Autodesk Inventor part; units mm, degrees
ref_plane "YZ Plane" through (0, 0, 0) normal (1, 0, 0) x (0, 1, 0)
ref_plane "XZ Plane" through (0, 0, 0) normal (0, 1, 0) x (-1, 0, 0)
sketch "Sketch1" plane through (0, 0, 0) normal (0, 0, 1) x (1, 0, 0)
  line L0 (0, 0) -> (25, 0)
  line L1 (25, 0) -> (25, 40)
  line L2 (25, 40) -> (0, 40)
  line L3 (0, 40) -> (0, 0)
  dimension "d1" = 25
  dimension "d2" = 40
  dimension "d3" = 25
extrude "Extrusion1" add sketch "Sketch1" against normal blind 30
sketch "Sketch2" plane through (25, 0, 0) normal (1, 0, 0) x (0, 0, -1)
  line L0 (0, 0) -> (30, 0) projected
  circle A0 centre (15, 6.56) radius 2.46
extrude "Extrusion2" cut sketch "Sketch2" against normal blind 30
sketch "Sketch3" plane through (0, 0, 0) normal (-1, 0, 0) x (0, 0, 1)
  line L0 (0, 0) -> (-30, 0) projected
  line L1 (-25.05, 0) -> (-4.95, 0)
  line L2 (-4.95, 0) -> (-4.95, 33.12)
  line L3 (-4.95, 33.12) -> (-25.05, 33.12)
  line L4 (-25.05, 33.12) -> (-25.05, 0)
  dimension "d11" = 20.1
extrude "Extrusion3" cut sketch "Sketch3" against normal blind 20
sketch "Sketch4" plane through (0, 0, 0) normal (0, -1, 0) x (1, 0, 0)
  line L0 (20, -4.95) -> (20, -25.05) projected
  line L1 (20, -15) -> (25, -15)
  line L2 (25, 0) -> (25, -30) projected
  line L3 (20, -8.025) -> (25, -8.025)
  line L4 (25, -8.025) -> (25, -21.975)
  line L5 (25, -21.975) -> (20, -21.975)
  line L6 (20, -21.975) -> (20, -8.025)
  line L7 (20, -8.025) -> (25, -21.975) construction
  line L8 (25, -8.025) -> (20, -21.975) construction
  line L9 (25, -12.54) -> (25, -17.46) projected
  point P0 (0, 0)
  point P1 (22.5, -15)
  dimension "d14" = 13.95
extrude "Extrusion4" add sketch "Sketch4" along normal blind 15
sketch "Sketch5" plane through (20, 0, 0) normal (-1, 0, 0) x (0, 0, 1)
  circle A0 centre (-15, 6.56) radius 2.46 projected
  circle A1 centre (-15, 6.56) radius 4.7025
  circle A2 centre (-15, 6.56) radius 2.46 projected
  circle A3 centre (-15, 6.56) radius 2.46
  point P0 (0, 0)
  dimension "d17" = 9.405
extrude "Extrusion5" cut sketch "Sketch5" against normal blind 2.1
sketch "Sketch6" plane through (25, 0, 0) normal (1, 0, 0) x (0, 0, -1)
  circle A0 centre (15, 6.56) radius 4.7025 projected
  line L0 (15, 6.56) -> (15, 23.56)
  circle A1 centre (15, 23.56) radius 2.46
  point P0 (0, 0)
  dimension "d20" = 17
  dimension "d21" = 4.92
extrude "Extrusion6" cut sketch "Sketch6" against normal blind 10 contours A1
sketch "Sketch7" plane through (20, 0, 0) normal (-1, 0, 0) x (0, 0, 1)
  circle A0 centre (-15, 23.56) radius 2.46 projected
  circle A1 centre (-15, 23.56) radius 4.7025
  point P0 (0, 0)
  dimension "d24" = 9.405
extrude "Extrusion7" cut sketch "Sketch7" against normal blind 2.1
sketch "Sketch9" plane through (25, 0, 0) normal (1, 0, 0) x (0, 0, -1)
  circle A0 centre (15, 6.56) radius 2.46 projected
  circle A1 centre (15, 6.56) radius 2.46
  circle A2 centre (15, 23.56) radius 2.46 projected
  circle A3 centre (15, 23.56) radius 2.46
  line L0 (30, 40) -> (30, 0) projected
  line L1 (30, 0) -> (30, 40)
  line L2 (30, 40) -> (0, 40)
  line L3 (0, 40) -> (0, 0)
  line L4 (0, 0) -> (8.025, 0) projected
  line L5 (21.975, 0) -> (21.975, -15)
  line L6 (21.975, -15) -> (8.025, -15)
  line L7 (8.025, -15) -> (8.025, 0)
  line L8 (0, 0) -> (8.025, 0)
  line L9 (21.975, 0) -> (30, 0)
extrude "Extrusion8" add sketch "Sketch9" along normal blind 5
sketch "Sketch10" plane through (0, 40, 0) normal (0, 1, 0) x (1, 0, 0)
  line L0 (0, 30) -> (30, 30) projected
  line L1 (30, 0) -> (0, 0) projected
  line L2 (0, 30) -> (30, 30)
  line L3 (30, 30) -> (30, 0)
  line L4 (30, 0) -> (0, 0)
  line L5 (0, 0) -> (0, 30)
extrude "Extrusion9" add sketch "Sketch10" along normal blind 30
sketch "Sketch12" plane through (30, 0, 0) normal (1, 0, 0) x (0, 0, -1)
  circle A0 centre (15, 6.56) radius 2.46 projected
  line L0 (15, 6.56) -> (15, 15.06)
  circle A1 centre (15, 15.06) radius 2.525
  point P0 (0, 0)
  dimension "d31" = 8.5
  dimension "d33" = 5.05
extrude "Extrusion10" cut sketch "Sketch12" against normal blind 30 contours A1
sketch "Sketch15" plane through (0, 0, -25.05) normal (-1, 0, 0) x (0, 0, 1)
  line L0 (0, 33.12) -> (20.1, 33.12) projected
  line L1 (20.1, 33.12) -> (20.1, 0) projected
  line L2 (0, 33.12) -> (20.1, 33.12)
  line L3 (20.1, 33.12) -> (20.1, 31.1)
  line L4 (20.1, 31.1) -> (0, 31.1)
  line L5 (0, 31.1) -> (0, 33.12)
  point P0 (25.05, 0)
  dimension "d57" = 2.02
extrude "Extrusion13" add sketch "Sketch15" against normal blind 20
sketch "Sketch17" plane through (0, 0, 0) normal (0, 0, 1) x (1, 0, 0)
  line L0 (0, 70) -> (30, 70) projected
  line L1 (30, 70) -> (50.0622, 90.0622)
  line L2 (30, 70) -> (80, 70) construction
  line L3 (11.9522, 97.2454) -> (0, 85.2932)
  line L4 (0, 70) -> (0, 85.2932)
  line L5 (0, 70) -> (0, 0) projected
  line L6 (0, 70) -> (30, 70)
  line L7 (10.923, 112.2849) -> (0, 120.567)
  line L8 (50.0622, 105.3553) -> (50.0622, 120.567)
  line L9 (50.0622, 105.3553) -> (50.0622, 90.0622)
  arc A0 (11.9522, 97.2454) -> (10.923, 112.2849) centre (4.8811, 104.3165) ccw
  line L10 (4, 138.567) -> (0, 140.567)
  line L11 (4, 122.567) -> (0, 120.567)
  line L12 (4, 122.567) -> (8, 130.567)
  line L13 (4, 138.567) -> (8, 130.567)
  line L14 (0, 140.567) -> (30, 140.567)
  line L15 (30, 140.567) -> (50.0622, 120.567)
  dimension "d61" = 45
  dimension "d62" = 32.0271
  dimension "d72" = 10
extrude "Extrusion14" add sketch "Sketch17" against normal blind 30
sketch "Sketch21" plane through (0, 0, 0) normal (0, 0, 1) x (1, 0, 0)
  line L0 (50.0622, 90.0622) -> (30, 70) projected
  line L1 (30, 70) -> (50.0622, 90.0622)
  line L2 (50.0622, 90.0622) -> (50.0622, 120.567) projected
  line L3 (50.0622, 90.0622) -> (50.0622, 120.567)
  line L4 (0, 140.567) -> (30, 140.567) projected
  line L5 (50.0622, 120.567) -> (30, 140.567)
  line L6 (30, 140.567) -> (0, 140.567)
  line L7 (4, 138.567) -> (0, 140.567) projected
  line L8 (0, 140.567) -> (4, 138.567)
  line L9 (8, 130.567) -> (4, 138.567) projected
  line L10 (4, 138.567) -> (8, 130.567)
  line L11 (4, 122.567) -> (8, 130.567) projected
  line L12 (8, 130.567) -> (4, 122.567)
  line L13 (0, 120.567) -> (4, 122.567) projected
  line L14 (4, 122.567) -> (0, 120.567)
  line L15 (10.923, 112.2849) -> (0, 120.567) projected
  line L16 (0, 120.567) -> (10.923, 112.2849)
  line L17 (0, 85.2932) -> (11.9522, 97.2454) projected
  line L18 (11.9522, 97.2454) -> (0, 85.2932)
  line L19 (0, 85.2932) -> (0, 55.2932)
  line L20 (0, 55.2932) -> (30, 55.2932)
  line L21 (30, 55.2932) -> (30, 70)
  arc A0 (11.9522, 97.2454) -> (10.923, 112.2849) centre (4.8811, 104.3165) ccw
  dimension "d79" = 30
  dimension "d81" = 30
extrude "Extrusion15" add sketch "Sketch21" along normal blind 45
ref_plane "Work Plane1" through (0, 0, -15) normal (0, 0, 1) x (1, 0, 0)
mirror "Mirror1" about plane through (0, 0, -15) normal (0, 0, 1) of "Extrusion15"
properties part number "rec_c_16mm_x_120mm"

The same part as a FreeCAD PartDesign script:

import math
import FreeCAD as App
import Part
import Sketcher

V = App.Vector
Q = App.Units.Quantity

doc = App.newDocument("Part")
body = doc.addObject("PartDesign::Body", "Body")

# Sketch on XY plane
sketch1 = body.newObject("Sketcher::SketchObject", "Sketch")
sketch1.AttachmentSupport = (doc.getObject("XY_Plane"), [""])
sketch1.MapMode = "FlatFace"
sketch1.addGeometry([
    Part.LineSegment(V(0, 40, 0), V(0, 0, 0)),
    Part.LineSegment(V(0, 0, 0), V(25, 0, 0)),
    Part.LineSegment(V(25, 0, 0), V(25, 40, 0)),
    Part.LineSegment(V(25, 40, 0), V(0, 40, 0)),
], False)
sketch1.addConstraint([
    Sketcher.Constraint("Coincident", 0, 2, 1, 1),
    Sketcher.Constraint("Coincident", 1, 2, 2, 1),
    Sketcher.Constraint("Coincident", 2, 2, 3, 1),
    Sketcher.Constraint("Coincident", 3, 2, 0, 1),
    Sketcher.Constraint("Vertical", 0),
    Sketcher.Constraint("Horizontal", 1),
    Sketcher.Constraint("Vertical", 2),
    Sketcher.Constraint("Horizontal", 3),
    Sketcher.Constraint("Coincident", 0, 2, -1, 1),
    Sketcher.Constraint("DistanceX", 1, 1, 1, 2, Q("25 mm")),
    Sketcher.Constraint("DistanceY", 0, 2, 0, 1, Q("40 mm")),
])
pad1 = body.newObject("PartDesign::Pad", "Pad")
pad1.Profile = sketch1
pad1.Length = 30
pad1.Reversed = True

# Sketch on YZ plane
sketch2 = body.newObject("Sketcher::SketchObject", "Sketch001")
sketch2.AttachmentSupport = (doc.getObject("YZ_Plane"), [""])
sketch2.MapMode = "FlatFace"
sketch2.AttachmentOffset = App.Placement(V(0, 0, 25), App.Rotation())
sketch2.addGeometry(Part.Circle(V(6.56, -15, 0), V(0, 0, 1), 2.46), False)
sketch2.addConstraint([
    Sketcher.Constraint("Diameter", 0, Q("4.92 mm")),
    Sketcher.Constraint("DistanceY", 0, 3, -1, 1, Q("15 mm")),
    Sketcher.Constraint("DistanceX", -1, 1, 0, 3, Q("6.56 mm")),
])
pocket1 = body.newObject("PartDesign::Pocket", "Pocket")
pocket1.Profile = sketch2
pocket1.Length = 30

# Sketch on YZ plane
sketch3 = body.newObject("Sketcher::SketchObject", "Sketch002")
sketch3.AttachmentSupport = (doc.getObject("YZ_Plane"), [""])
sketch3.MapMode = "FlatFace"
sketch3.addGeometry([
    Part.LineSegment(V(0, -25.05, 0), V(0, -4.95, 0)),
    Part.LineSegment(V(0, -4.95, 0), V(33.12, -4.95, 0)),
    Part.LineSegment(V(33.12, -4.95, 0), V(33.12, -25.05, 0)),
    Part.LineSegment(V(33.12, -25.05, 0), V(0, -25.05, 0)),
], False)
sketch3.addConstraint([
    Sketcher.Constraint("Coincident", 0, 2, 1, 1),
    Sketcher.Constraint("Coincident", 1, 2, 2, 1),
    Sketcher.Constraint("Coincident", 2, 2, 3, 1),
    Sketcher.Constraint("Coincident", 3, 2, 0, 1),
    Sketcher.Constraint("Vertical", 0),
    Sketcher.Constraint("Horizontal", 1),
    Sketcher.Constraint("Vertical", 2),
    Sketcher.Constraint("Horizontal", 3),
    Sketcher.Constraint("PointOnObject", 0, 2, -2),
    Sketcher.Constraint("DistanceY", 0, 1, 0, 2, Q("20.1 mm")),
    Sketcher.Constraint("DistanceX", 1, 1, 1, 2, Q("33.12 mm")),
    Sketcher.Constraint("DistanceY", 0, 2, -1, 1, Q("4.95 mm")),
])
pocket2 = body.newObject("PartDesign::Pocket", "Pocket001")
pocket2.Profile = sketch3
pocket2.Length = 20
pocket2.Reversed = True

# Sketch on XZ plane
sketch4 = body.newObject("Sketcher::SketchObject", "Sketch003")
sketch4.AttachmentSupport = (doc.getObject("XZ_Plane"), [""])
sketch4.MapMode = "FlatFace"
sketch4.addGeometry([
    Part.LineSegment(V(25, -8.025, 0), V(20, -8.025, 0)),
    Part.LineSegment(V(20, -8.025, 0), V(20, -21.975, 0)),
    Part.LineSegment(V(20, -21.975, 0), V(25, -21.975, 0)),
    Part.LineSegment(V(25, -21.975, 0), V(25, -8.025, 0)),
], False)
sketch4.addConstraint([
    Sketcher.Constraint("Coincident", 0, 2, 1, 1),
    Sketcher.Constraint("Coincident", 1, 2, 2, 1),
    Sketcher.Constraint("Coincident", 2, 2, 3, 1),
    Sketcher.Constraint("Coincident", 3, 2, 0, 1),
    Sketcher.Constraint("Horizontal", 0),
    Sketcher.Constraint("Vertical", 1),
    Sketcher.Constraint("Horizontal", 2),
    Sketcher.Constraint("Vertical", 3),
    Sketcher.Constraint("DistanceY", 1, 2, 1, 1, Q("13.95 mm")),
    Sketcher.Constraint("DistanceX", 0, 2, 0, 1, Q("5 mm")),
    Sketcher.Constraint("DistanceX", -1, 1, 0, 2, Q("20 mm")),
    Sketcher.Constraint("DistanceY", 0, 2, -1, 1, Q("8.025 mm")),
])
pad2 = body.newObject("PartDesign::Pad", "Pad001")
pad2.Profile = sketch4
pad2.Length = 15

# Sketch on YZ plane
sketch5 = body.newObject("Sketcher::SketchObject", "Sketch004")
sketch5.AttachmentSupport = (doc.getObject("YZ_Plane"), [""])
sketch5.MapMode = "FlatFace"
sketch5.AttachmentOffset = App.Placement(V(0, 0, 20), App.Rotation())
sketch5.addGeometry([
    Part.Circle(V(6.56, -15, 0), V(0, 0, 1), 4.7025),
    Part.Circle(V(6.56, -15, 0), V(0, 0, 1), 2.46),
], False)
sketch5.addConstraint([
    Sketcher.Constraint("Coincident", 1, 3, 0, 3),
    Sketcher.Constraint("Diameter", 0, Q("9.405 mm")),
    Sketcher.Constraint("Diameter", 1, Q("4.92 mm")),
    Sketcher.Constraint("DistanceY", 0, 3, -1, 1, Q("15 mm")),
    Sketcher.Constraint("DistanceX", -1, 1, 0, 3, Q("6.56 mm")),
])
pocket3 = body.newObject("PartDesign::Pocket", "Pocket002")
pocket3.Profile = sketch5
pocket3.Length = 2.1
pocket3.Reversed = True

# Sketch on YZ plane
sketch6 = body.newObject("Sketcher::SketchObject", "Sketch005")
sketch6.AttachmentSupport = (doc.getObject("YZ_Plane"), [""])
sketch6.MapMode = "FlatFace"
sketch6.AttachmentOffset = App.Placement(V(0, 0, 25), App.Rotation())
sketch6.addGeometry(Part.Circle(V(23.56, -15, 0), V(0, 0, 1), 2.46), False)
sketch6.addConstraint([
    Sketcher.Constraint("Diameter", 0, Q("4.92 mm")),
    Sketcher.Constraint("DistanceY", 0, 3, -1, 1, Q("15 mm")),
    Sketcher.Constraint("DistanceX", -1, 1, 0, 3, Q("23.56 mm")),
])
pocket4 = body.newObject("PartDesign::Pocket", "Pocket003")
pocket4.Profile = sketch6
pocket4.Length = 10

# Sketch on YZ plane
sketch7 = body.newObject("Sketcher::SketchObject", "Sketch006")
sketch7.AttachmentSupport = (doc.getObject("YZ_Plane"), [""])
sketch7.MapMode = "FlatFace"
sketch7.AttachmentOffset = App.Placement(V(0, 0, 20), App.Rotation())
sketch7.addGeometry([
    Part.Circle(V(23.56, -15, 0), V(0, 0, 1), 4.7025),
    Part.Circle(V(23.56, -15, 0), V(0, 0, 1), 2.46),
], False)
sketch7.addConstraint([
    Sketcher.Constraint("Coincident", 1, 3, 0, 3),
    Sketcher.Constraint("Diameter", 0, Q("9.405 mm")),
    Sketcher.Constraint("Diameter", 1, Q("4.92 mm")),
    Sketcher.Constraint("DistanceY", 0, 3, -1, 1, Q("15 mm")),
    Sketcher.Constraint("DistanceX", -1, 1, 0, 3, Q("23.56 mm")),
])
pocket5 = body.newObject("PartDesign::Pocket", "Pocket004")
pocket5.Profile = sketch7
pocket5.Length = 2.1
pocket5.Reversed = True

# Sketch on YZ plane
sketch8 = body.newObject("Sketcher::SketchObject", "Sketch007")
sketch8.AttachmentSupport = (doc.getObject("YZ_Plane"), [""])
sketch8.MapMode = "FlatFace"
sketch8.AttachmentOffset = App.Placement(V(0, 0, 25), App.Rotation())
sketch8.addGeometry([
    Part.LineSegment(V(0, -30, 0), V(40, -30, 0)),  # 0
    Part.LineSegment(V(40, -30, 0), V(40, 0, 0)),  # 1
    Part.LineSegment(V(40, 0, 0), V(0, 0, 0)),  # 2
    Part.LineSegment(V(0, 0, 0), V(0, -8.025, 0)),  # 3
    Part.LineSegment(V(0, -8.025, 0), V(-15, -8.025, 0)),  # 4
    Part.LineSegment(V(-15, -8.025, 0), V(-15, -21.975, 0)),  # 5
    Part.LineSegment(V(-15, -21.975, 0), V(0, -21.975, 0)),  # 6
    Part.LineSegment(V(0, -21.975, 0), V(0, -30, 0)),  # 7
    Part.Circle(V(6.56, -15, 0), V(0, 0, 1), 2.46),  # 8
    Part.Circle(V(23.56, -15, 0), V(0, 0, 1), 2.46),  # 9
], False)
sketch8.addConstraint([
    Sketcher.Constraint("Coincident", 0, 2, 1, 1),
    Sketcher.Constraint("Coincident", 1, 2, 2, 1),
    Sketcher.Constraint("Coincident", 2, 2, 3, 1),
    Sketcher.Constraint("Coincident", 3, 2, 4, 1),
    Sketcher.Constraint("Coincident", 4, 2, 5, 1),
    Sketcher.Constraint("Coincident", 5, 2, 6, 1),
    Sketcher.Constraint("Coincident", 6, 2, 7, 1),
    Sketcher.Constraint("Coincident", 7, 2, 0, 1),
    Sketcher.Constraint("Horizontal", 0),
    Sketcher.Constraint("Vertical", 1),
    Sketcher.Constraint("Horizontal", 2),
    Sketcher.Constraint("Vertical", 3),
    Sketcher.Constraint("Horizontal", 4),
    Sketcher.Constraint("Vertical", 5),
    Sketcher.Constraint("Horizontal", 6),
    Sketcher.Constraint("Vertical", 7),
    Sketcher.Constraint("Coincident", 2, 2, -1, 1),
    Sketcher.Constraint("Equal", 8, 9),
    Sketcher.Constraint("PointOnObject", 6, 2, -2),
    Sketcher.Constraint("Horizontal", 8, 3, 9, 3),
    Sketcher.Constraint("Equal", 3, 7),
    Sketcher.Constraint("Diameter", 8, Q("4.92 mm")),
    Sketcher.Constraint("DistanceX", 0, 1, 0, 2, Q("40 mm")),
    Sketcher.Constraint("DistanceX", 4, 2, 4, 1, Q("15 mm")),
    Sketcher.Constraint("DistanceY", 1, 1, 1, 2, Q("30 mm")),
    Sketcher.Constraint("DistanceY", 8, 3, -1, 1, Q("15 mm")),
    Sketcher.Constraint("DistanceX", 8, 3, 9, 3, Q("17 mm")),
    Sketcher.Constraint("DistanceY", 5, 2, 5, 1, Q("13.95 mm")),
    Sketcher.Constraint("DistanceX", -1, 1, 8, 3, Q("6.56 mm")),
])
pad3 = body.newObject("PartDesign::Pad", "Pad002")
pad3.Profile = sketch8
pad3.Length = 5

# Sketch on XZ plane
sketch9 = body.newObject("Sketcher::SketchObject", "Sketch008")
sketch9.AttachmentSupport = (doc.getObject("XZ_Plane"), [""])
sketch9.MapMode = "FlatFace"
sketch9.AttachmentOffset = App.Placement(V(0, 0, -40), App.Rotation())
sketch9.addGeometry([
    Part.LineSegment(V(30, -30, 0), V(0, -30, 0)),
    Part.LineSegment(V(0, -30, 0), V(0, 0, 0)),
    Part.LineSegment(V(0, 0, 0), V(30, 0, 0)),
    Part.LineSegment(V(30, 0, 0), V(30, -30, 0)),
], False)
sketch9.addConstraint([
    Sketcher.Constraint("Coincident", 0, 2, 1, 1),
    Sketcher.Constraint("Coincident", 1, 2, 2, 1),
    Sketcher.Constraint("Coincident", 2, 2, 3, 1),
    Sketcher.Constraint("Coincident", 3, 2, 0, 1),
    Sketcher.Constraint("Horizontal", 0),
    Sketcher.Constraint("Vertical", 1),
    Sketcher.Constraint("Horizontal", 2),
    Sketcher.Constraint("Vertical", 3),
    Sketcher.Constraint("Coincident", 1, 2, -1, 1),
    Sketcher.Constraint("Equal", 2, 1),
    Sketcher.Constraint("DistanceX", 0, 2, 0, 1, Q("30 mm")),
])
pad4 = body.newObject("PartDesign::Pad", "Pad003")
pad4.Profile = sketch9
pad4.Length = 30
pad4.Reversed = True

# Sketch on YZ plane
sketch10 = body.newObject("Sketcher::SketchObject", "Sketch009")
sketch10.AttachmentSupport = (doc.getObject("YZ_Plane"), [""])
sketch10.MapMode = "FlatFace"
sketch10.AttachmentOffset = App.Placement(V(0, 0, 30), App.Rotation())
sketch10.addGeometry(Part.Circle(V(15.06, -15, 0), V(0, 0, 1), 2.525), False)
sketch10.addConstraint([
    Sketcher.Constraint("Diameter", 0, Q("5.05 mm")),
    Sketcher.Constraint("DistanceY", 0, 3, -1, 1, Q("15 mm")),
    Sketcher.Constraint("DistanceX", -1, 1, 0, 3, Q("15.06 mm")),
])
pocket6 = body.newObject("PartDesign::Pocket", "Pocket005")
pocket6.Profile = sketch10
pocket6.Length = 30

# Sketch on YZ plane
sketch11 = body.newObject("Sketcher::SketchObject", "Sketch010")
sketch11.AttachmentSupport = (doc.getObject("YZ_Plane"), [""])
sketch11.MapMode = "FlatFace"
sketch11.addGeometry([
    Part.LineSegment(V(33.12, -4.95, 0), V(33.12, -25.05, 0)),
    Part.LineSegment(V(33.12, -25.05, 0), V(31.1, -25.05, 0)),
    Part.LineSegment(V(31.1, -25.05, 0), V(31.1, -4.95, 0)),
    Part.LineSegment(V(31.1, -4.95, 0), V(33.12, -4.95, 0)),
], False)
sketch11.addConstraint([
    Sketcher.Constraint("Coincident", 0, 2, 1, 1),
    Sketcher.Constraint("Coincident", 1, 2, 2, 1),
    Sketcher.Constraint("Coincident", 2, 2, 3, 1),
    Sketcher.Constraint("Coincident", 3, 2, 0, 1),
    Sketcher.Constraint("Vertical", 0),
    Sketcher.Constraint("Horizontal", 1),
    Sketcher.Constraint("Vertical", 2),
    Sketcher.Constraint("Horizontal", 3),
    Sketcher.Constraint("DistanceX", 1, 2, 1, 1, Q("2.02 mm")),
    Sketcher.Constraint("DistanceY", 0, 2, 0, 1, Q("20.1 mm")),
    Sketcher.Constraint("DistanceX", -1, 1, 1, 2, Q("31.1 mm")),
    Sketcher.Constraint("DistanceY", 0, 2, -1, 1, Q("25.05 mm")),
])
pad5 = body.newObject("PartDesign::Pad", "Pad004")
pad5.Profile = sketch11
pad5.Length = 20

# Sketch on XY plane
sketch12 = body.newObject("Sketcher::SketchObject", "Sketch011")
sketch12.AttachmentSupport = (doc.getObject("XY_Plane"), [""])
sketch12.MapMode = "FlatFace"
sketch12.addGeometry([
    Part.LineSegment(V(0, 85.2932, 0), V(0, 70, 0)),  # 0
    Part.LineSegment(V(0, 70, 0), V(30, 70, 0)),  # 1
    Part.LineSegment(V(30, 70, 0), V(50.0622, 90.0622, 0)),  # 2
    Part.LineSegment(V(50.0622, 90.0622, 0), V(50.0622, 120.567, 0)),  # 3
    Part.LineSegment(V(50.0622, 120.567, 0), V(30, 140.567, 0)),  # 4
    Part.LineSegment(V(30, 140.567, 0), V(0, 140.567, 0)),  # 5
    Part.LineSegment(V(0, 140.567, 0), V(4, 138.567, 0)),  # 6
    Part.LineSegment(V(4, 138.567, 0), V(8, 130.567, 0)),  # 7
    Part.LineSegment(V(8, 130.567, 0), V(4, 122.567, 0)),  # 8
    Part.LineSegment(V(4, 122.567, 0), V(0, 120.567, 0)),  # 9
    Part.LineSegment(V(0, 120.567, 0), V(10.923, 112.2849, 0)),  # 10
    Part.ArcOfCircle(Part.Circle(V(4.8811, 104.3165, 0), V(0, 0, 1), 10.000046), math.radians(-45), math.radians(52.829413)),  # 11
    Part.LineSegment(V(11.9522, 97.2454, 0), V(0, 85.2932, 0)),  # 12
], False)
sketch12.addConstraint([
    Sketcher.Constraint("Coincident", 0, 2, 1, 1),
    Sketcher.Constraint("Coincident", 1, 2, 2, 1),
    Sketcher.Constraint("Coincident", 2, 2, 3, 1),
    Sketcher.Constraint("Coincident", 3, 2, 4, 1),
    Sketcher.Constraint("Coincident", 4, 2, 5, 1),
    Sketcher.Constraint("Coincident", 5, 2, 6, 1),
    Sketcher.Constraint("Coincident", 6, 2, 7, 1),
    Sketcher.Constraint("Coincident", 7, 2, 8, 1),
    Sketcher.Constraint("Coincident", 8, 2, 9, 1),
    Sketcher.Constraint("Coincident", 9, 2, 10, 1),
    Sketcher.Constraint("Tangent", 10, 2, 11, 2),
    Sketcher.Constraint("Tangent", 11, 1, 12, 1),
    Sketcher.Constraint("Coincident", 12, 2, 0, 1),
    Sketcher.Constraint("Vertical", 0),
    Sketcher.Constraint("Horizontal", 1),
    Sketcher.Constraint("Vertical", 3),
    Sketcher.Constraint("Horizontal", 5),
    Sketcher.Constraint("PointOnObject", 0, 2, -2),
    Sketcher.Constraint("PointOnObject", 5, 2, -2),
    Sketcher.Constraint("PointOnObject", 9, 2, -2),
    Sketcher.Constraint("Perpendicular", 6, 8),
    Sketcher.Constraint("Perpendicular", 7, 9),
    Sketcher.Constraint("Parallel", 2, 12),
    Sketcher.Constraint("Horizontal", 3, 2, 9, 2),
    Sketcher.Constraint("Vertical", 1, 2, 4, 2),
    Sketcher.Constraint("Vertical", 6, 2, 8, 2),
    Sketcher.Constraint("Equal", 7, 8),
    Sketcher.Constraint("Radius", 11, Q("10 mm")),
    Sketcher.Constraint("Angle", 2, Q("45 deg")),
    Sketcher.Constraint("DistanceY", 7, 2, 5, 2, Q("10 mm")),
    Sketcher.Constraint("DistanceX", 1, 1, 1, 2, Q("30 mm")),
    Sketcher.Constraint("DistanceY", -1, 1, 0, 2, Q("70 mm")),
    Sketcher.Constraint("DistanceX", -1, 1, 6, 2, Q("4 mm")),
    Sketcher.Constraint("DistanceX", -1, 1, 7, 2, Q("8 mm")),
    Sketcher.Constraint("Angle", 4, Q("135.089 deg")),
    Sketcher.Constraint("Angle", 10, Q("-37.1703 deg")),
    Sketcher.Constraint("Distance", 12, Q("16.903 mm")),
    Sketcher.Constraint("DistanceY", 0, 2, 0, 1, Q("15.2932 mm")),
])
pad6 = body.newObject("PartDesign::Pad", "Pad005")
pad6.Profile = sketch12
pad6.Length = 30
pad6.Reversed = True

# Sketch on XY plane
sketch13 = body.newObject("Sketcher::SketchObject", "Sketch012")
sketch13.AttachmentSupport = (doc.getObject("XY_Plane"), [""])
sketch13.MapMode = "FlatFace"
sketch13.addGeometry([
    Part.LineSegment(V(30, 70, 0), V(50.0622, 90.0622, 0)),  # 0
    Part.LineSegment(V(50.0622, 90.0622, 0), V(50.0622, 120.567, 0)),  # 1
    Part.LineSegment(V(50.0622, 120.567, 0), V(30, 140.567, 0)),  # 2
    Part.LineSegment(V(30, 140.567, 0), V(0, 140.567, 0)),  # 3
    Part.LineSegment(V(0, 140.567, 0), V(4, 138.567, 0)),  # 4
    Part.LineSegment(V(4, 138.567, 0), V(8, 130.567, 0)),  # 5
    Part.LineSegment(V(8, 130.567, 0), V(4, 122.567, 0)),  # 6
    Part.LineSegment(V(4, 122.567, 0), V(0, 120.567, 0)),  # 7
    Part.LineSegment(V(0, 120.567, 0), V(10.923, 112.2849, 0)),  # 8
    Part.ArcOfCircle(Part.Circle(V(4.8811, 104.3165, 0), V(0, 0, 1), 10.000046), math.radians(-45), math.radians(52.829413)),  # 9
    Part.LineSegment(V(11.9522, 97.2454, 0), V(0, 85.2932, 0)),  # 10
    Part.LineSegment(V(0, 85.2932, 0), V(0, 55.2932, 0)),  # 11
    Part.LineSegment(V(0, 55.2932, 0), V(30, 55.2932, 0)),  # 12
    Part.LineSegment(V(30, 55.2932, 0), V(30, 70, 0)),  # 13
], False)
sketch13.addConstraint([
    Sketcher.Constraint("Coincident", 0, 2, 1, 1),
    Sketcher.Constraint("Coincident", 1, 2, 2, 1),
    Sketcher.Constraint("Coincident", 2, 2, 3, 1),
    Sketcher.Constraint("Coincident", 3, 2, 4, 1),
    Sketcher.Constraint("Coincident", 4, 2, 5, 1),
    Sketcher.Constraint("Coincident", 5, 2, 6, 1),
    Sketcher.Constraint("Coincident", 6, 2, 7, 1),
    Sketcher.Constraint("Coincident", 7, 2, 8, 1),
    Sketcher.Constraint("Tangent", 8, 2, 9, 2),
    Sketcher.Constraint("Tangent", 9, 1, 10, 1),
    Sketcher.Constraint("Coincident", 10, 2, 11, 1),
    Sketcher.Constraint("Coincident", 11, 2, 12, 1),
    Sketcher.Constraint("Coincident", 12, 2, 13, 1),
    Sketcher.Constraint("Coincident", 13, 2, 0, 1),
    Sketcher.Constraint("Vertical", 1),
    Sketcher.Constraint("Horizontal", 3),
    Sketcher.Constraint("Vertical", 11),
    Sketcher.Constraint("Horizontal", 12),
    Sketcher.Constraint("Vertical", 13),
    Sketcher.Constraint("PointOnObject", 3, 2, -2),
    Sketcher.Constraint("PointOnObject", 7, 2, -2),
    Sketcher.Constraint("PointOnObject", 10, 2, -2),
    Sketcher.Constraint("Perpendicular", 4, 6),
    Sketcher.Constraint("Perpendicular", 5, 7),
    Sketcher.Constraint("Parallel", 0, 10),
    Sketcher.Constraint("Horizontal", 1, 2, 7, 2),
    Sketcher.Constraint("Vertical", 4, 2, 6, 2),
    Sketcher.Constraint("Vertical", 2, 2, 12, 2),
    Sketcher.Constraint("Equal", 12, 11),
    Sketcher.Constraint("Equal", 5, 6),
    Sketcher.Constraint("DistanceX", 3, 2, 3, 1, Q("30 mm")),
    Sketcher.Constraint("Radius", 9, Q("10 mm")),
    Sketcher.Constraint("Angle", 0, Q("45 deg")),
    Sketcher.Constraint("DistanceX", -1, 1, 4, 2, Q("4 mm")),
    Sketcher.Constraint("DistanceX", -1, 1, 5, 2, Q("8 mm")),
    Sketcher.Constraint("DistanceY", -1, 1, 13, 2, Q("70 mm")),
    Sketcher.Constraint("DistanceY", 1, 2, 2, 2, Q("20 mm")),
    Sketcher.Constraint("Angle", 2, Q("135.089 deg")),
    Sketcher.Constraint("Angle", 8, Q("-37.1703 deg")),
    Sketcher.Constraint("Distance", 10, Q("16.903 mm")),
    Sketcher.Constraint("DistanceY", 1, 1, 1, 2, Q("30.5048 mm")),
])
pad7 = body.newObject("PartDesign::Pad", "Pad006")
pad7.Profile = sketch13
pad7.Length = 45
doc.recompute()

datumplane = body.newObject("PartDesign::Plane", "DatumPlane")
datumplane.AttachmentSupport = (doc.getObject("XY_Plane"), [""])
datumplane.MapMode = "FlatFace"
datumplane.AttachmentOffset = App.Placement(V(0, 0, -15), App.Rotation())
mirrored = body.newObject("PartDesign::Mirrored", "Mirrored")
mirrored.Originals = [pad7]
mirrored.MirrorPlane = (datumplane, [""])
body.Tip = mirrored

doc.recompute()
